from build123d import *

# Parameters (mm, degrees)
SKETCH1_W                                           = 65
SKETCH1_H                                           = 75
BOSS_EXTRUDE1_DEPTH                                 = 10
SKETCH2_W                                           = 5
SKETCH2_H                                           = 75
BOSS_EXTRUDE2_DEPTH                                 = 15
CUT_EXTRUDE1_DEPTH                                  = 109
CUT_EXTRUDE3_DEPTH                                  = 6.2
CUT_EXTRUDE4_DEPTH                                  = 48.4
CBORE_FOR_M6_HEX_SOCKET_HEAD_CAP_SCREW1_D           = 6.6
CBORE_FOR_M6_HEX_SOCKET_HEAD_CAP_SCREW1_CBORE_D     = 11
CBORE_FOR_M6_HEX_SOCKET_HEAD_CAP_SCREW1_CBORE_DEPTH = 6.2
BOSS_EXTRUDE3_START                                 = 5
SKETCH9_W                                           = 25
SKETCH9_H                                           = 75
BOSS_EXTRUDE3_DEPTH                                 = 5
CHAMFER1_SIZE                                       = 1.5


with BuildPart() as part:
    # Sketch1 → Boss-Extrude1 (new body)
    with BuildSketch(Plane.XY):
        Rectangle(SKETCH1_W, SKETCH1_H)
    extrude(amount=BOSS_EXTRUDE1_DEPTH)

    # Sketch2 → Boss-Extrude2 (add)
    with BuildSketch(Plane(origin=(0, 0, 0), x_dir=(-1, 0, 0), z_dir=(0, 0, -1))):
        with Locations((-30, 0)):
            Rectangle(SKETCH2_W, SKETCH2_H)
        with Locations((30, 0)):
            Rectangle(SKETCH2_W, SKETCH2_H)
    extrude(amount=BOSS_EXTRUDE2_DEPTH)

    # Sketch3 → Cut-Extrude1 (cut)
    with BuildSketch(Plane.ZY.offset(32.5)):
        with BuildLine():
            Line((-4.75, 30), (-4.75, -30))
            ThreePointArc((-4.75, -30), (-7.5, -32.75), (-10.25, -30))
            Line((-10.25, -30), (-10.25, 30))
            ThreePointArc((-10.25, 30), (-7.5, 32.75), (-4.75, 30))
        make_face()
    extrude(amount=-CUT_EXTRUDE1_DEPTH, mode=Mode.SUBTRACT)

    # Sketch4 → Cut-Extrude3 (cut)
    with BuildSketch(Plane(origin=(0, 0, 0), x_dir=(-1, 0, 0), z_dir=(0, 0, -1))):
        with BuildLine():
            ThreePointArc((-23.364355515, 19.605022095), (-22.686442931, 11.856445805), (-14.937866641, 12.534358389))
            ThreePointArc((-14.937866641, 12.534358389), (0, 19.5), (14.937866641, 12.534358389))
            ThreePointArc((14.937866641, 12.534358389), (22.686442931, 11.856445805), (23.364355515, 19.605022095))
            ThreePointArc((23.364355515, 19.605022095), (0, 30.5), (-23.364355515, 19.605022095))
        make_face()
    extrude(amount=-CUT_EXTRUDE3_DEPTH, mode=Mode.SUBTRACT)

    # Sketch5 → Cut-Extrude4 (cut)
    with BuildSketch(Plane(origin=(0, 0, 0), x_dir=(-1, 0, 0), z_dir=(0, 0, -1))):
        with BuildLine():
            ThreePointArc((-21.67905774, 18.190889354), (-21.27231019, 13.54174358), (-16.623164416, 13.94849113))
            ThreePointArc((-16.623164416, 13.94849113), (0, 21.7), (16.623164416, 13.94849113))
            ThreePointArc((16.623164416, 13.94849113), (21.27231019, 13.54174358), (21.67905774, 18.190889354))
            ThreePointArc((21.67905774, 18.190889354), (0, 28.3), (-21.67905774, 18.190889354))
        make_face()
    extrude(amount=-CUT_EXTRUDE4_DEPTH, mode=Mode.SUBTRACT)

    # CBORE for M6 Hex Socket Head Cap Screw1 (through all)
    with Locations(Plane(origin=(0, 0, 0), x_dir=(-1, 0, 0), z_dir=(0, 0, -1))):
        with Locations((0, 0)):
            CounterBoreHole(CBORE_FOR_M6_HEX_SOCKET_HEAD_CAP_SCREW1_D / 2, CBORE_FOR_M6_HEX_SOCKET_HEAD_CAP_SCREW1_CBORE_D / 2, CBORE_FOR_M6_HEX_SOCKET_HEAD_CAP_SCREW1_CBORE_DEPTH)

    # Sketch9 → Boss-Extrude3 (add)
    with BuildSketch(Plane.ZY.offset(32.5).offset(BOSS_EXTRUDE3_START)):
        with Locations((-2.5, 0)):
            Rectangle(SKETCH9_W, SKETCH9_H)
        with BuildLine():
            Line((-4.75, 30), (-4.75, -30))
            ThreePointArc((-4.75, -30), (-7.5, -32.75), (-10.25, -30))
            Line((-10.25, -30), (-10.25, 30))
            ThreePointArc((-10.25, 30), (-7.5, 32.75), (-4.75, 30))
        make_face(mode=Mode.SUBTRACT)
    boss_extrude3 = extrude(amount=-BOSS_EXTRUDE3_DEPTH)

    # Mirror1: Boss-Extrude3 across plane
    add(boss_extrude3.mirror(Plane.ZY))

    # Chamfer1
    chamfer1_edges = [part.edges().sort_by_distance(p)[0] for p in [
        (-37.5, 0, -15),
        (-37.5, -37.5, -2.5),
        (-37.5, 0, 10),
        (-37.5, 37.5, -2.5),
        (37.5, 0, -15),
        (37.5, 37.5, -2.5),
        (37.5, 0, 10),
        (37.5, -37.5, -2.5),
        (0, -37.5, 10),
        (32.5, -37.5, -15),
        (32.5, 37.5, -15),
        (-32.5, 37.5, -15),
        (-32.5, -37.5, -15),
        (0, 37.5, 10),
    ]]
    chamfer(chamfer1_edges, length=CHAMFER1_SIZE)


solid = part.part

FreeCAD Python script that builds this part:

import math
import FreeCAD as App
import Part
import Sketcher


def edges_at(feature, points):
    """Names of the edges that pass closest to the given points."""
    edges = feature.Shape.Edges
    near = lambda p: min(range(len(edges)), key=lambda i: edges[i].distToShape(Part.Vertex(*p))[0])
    return sorted({f"Edge{near(p) + 1}" for p in points})


def add_polygon(sketch, points):
    """Adds a closed chain of lines whose ends are joined by coincident constraints."""
    first, n = sketch.GeometryCount, len(points)
    for a, b in zip(points, points[1:] + points[:1]):
        sketch.addGeometry(Part.LineSegment(App.Vector(*a, 0), App.Vector(*b, 0)), False)
    for i in range(n):
        sketch.addConstraint(Sketcher.Constraint("Coincident", first + i, 2, first + (i + 1) % n, 1))

doc = App.newDocument("Part")
body = doc.addObject("PartDesign::Body", "Body")

sketch1 = body.newObject("Sketcher::SketchObject", "Sketch")
sketch1.AttachmentSupport = (doc.getObject("XY_Plane"), [""])
sketch1.MapMode = "FlatFace"
add_polygon(sketch1, [(-32.5, 37.5), (-32.5, -37.5), (32.5, -37.5), (32.5, 37.5)])
sketch1.addConstraint(Sketcher.Constraint("Vertical", 0))
sketch1.addConstraint(Sketcher.Constraint("Horizontal", 1))
sketch1.addConstraint(Sketcher.Constraint("Vertical", 2))
sketch1.addConstraint(Sketcher.Constraint("Horizontal", 3))
sketch1.addConstraint(Sketcher.Constraint("Symmetric", 0, 2, 2, 2, -1, 1))
sketch1.addConstraint(Sketcher.Constraint("DistanceX", 1, 1, 1, 2, 65.0))
sketch1.addConstraint(Sketcher.Constraint("DistanceY", 0, 2, 0, 1, 75.0))
pad1 = body.newObject("PartDesign::Pad", "Pad")
pad1.Profile = sketch1
pad1.Length = 10

sketch2 = body.newObject("Sketcher::SketchObject", "Sketch001")
sketch2.AttachmentSupport = (doc.getObject("XY_Plane"), [""])
sketch2.MapMode = "FlatFace"
add_polygon(sketch2, [(32.5, 37.5), (32.5, -37.5), (27.5, -37.5), (27.5, 37.5)])
add_polygon(sketch2, [(-27.5, 37.5), (-27.5, -37.5), (-32.5, -37.5), (-32.5, 37.5)])
sketch2.addConstraint(Sketcher.Constraint("Vertical", 0))
sketch2.addConstraint(Sketcher.Constraint("Horizontal", 1))
sketch2.addConstraint(Sketcher.Constraint("Vertical", 2))
sketch2.addConstraint(Sketcher.Constraint("Horizontal", 3))
sketch2.addConstraint(Sketcher.Constraint("Vertical", 4))
sketch2.addConstraint(Sketcher.Constraint("Horizontal", 5))
sketch2.addConstraint(Sketcher.Constraint("Vertical", 6))
sketch2.addConstraint(Sketcher.Constraint("Horizontal", 7))
sketch2.addConstraint(Sketcher.Constraint("Symmetric", 2, 2, 4, 2, -1, 1))
sketch2.addConstraint(Sketcher.Constraint("Symmetric", 0, 2, 6, 2, -1, 1))
sketch2.addConstraint(Sketcher.Constraint("Horizontal", 1, 2, 4, 2))
sketch2.addConstraint(Sketcher.Constraint("DistanceX", 1, 2, 1, 1, 5.0))
sketch2.addConstraint(Sketcher.Constraint("DistanceY", 0, 2, 0, 1, 75.0))
sketch2.addConstraint(Sketcher.Constraint("DistanceX", 4, 2, 1, 2, 55.0))
pad2 = body.newObject("PartDesign::Pad", "Pad001")
pad2.Profile = sketch2
pad2.Length = 15
pad2.Reversed = True

sketch3 = body.newObject("Sketcher::SketchObject", "Sketch002")
sketch3.AttachmentSupport = (doc.getObject("YZ_Plane"), [""])
sketch3.MapMode = "FlatFace"
sketch3.AttachmentOffset = App.Placement(App.Vector(0, 0, -32.5), App.Rotation())
sketch3.addGeometry(Part.LineSegment(App.Vector(-30, -4.75, 0), App.Vector(30, -4.75, 0)), False)
sketch3.addGeometry(Part.ArcOfCircle(Part.Circle(App.Vector(30, -7.5, 0), App.Vector(0, 0, 1), 2.75), math.radians(-90), math.radians(90)), False)
sketch3.addGeometry(Part.LineSegment(App.Vector(30, -10.25, 0), App.Vector(-30, -10.25, 0)), False)
sketch3.addGeometry(Part.ArcOfCircle(Part.Circle(App.Vector(-30, -7.5, 0), App.Vector(0, 0, 1), 2.75), math.radians(90), math.radians(270)), False)
sketch3.addConstraint(Sketcher.Constraint("Tangent", 0, 2, 1, 2))
sketch3.addConstraint(Sketcher.Constraint("Tangent", 1, 1, 2, 1))
sketch3.addConstraint(Sketcher.Constraint("Tangent", 2, 2, 3, 2))
sketch3.addConstraint(Sketcher.Constraint("Tangent", 3, 1, 0, 1))
sketch3.addConstraint(Sketcher.Constraint("Horizontal", 0))
sketch3.addConstraint(Sketcher.Constraint("Horizontal", 2))
sketch3.addConstraint(Sketcher.Constraint("DistanceX", 0, 1, 0, 2, 60.0))
sketch3.addConstraint(Sketcher.Constraint("Radius", 1, 2.75))
sketch3.addConstraint(Sketcher.Constraint("DistanceX", -1, 1, 1, 3, 30.0))
sketch3.addConstraint(Sketcher.Constraint("DistanceY", 1, 3, -1, 1, 7.5))
pocket1 = body.newObject("PartDesign::Pocket", "Pocket")
pocket1.Profile = sketch3
pocket1.Length = 109
pocket1.Reversed = True

sketch4 = body.newObject("Sketcher::SketchObject", "Sketch003")
sketch4.AttachmentSupport = (doc.getObject("XY_Plane"), [""])
sketch4.MapMode = "FlatFace"
sketch4.addGeometry(Part.ArcOfCircle(Part.Circle(App.Vector(19.151111, 16.06969, 0), App.Vector(0, 0, 1), 5.5), math.radians(-140), math.radians(40)), False)
sketch4.addGeometry(Part.ArcOfCircle(Part.Circle(App.Vector(0, 0, 0), App.Vector(0, 0, 1), 19.5), math.radians(40), math.radians(140)), False)
sketch4.addGeometry(Part.ArcOfCircle(Part.Circle(App.Vector(-19.151111, 16.06969, 0), App.Vector(0, 0, 1), 5.5), math.radians(140), math.radians(320)), False)
sketch4.addGeometry(Part.ArcOfCircle(Part.Circle(App.Vector(0, 0, 0), App.Vector(0, 0, 1), 30.5), math.radians(40), math.radians(140)), False)
sketch4.addConstraint(Sketcher.Constraint("Tangent", 0, 1, 1, 1))
sketch4.addConstraint(Sketcher.Constraint("Tangent", 1, 2, 2, 2))
sketch4.addConstraint(Sketcher.Constraint("Tangent", 2, 1, 3, 2))
sketch4.addConstraint(Sketcher.Constraint("Tangent", 3, 1, 0, 2))
sketch4.addConstraint(Sketcher.Constraint("Coincident", 1, 3, -1, 1))
sketch4.addConstraint(Sketcher.Constraint("Coincident", 3, 3, -1, 1))
sketch4.addConstraint(Sketcher.Constraint("Horizontal", 0, 3, 2, 3))
sketch4.addConstraint(Sketcher.Constraint("Radius", 0, 5.5))
sketch4.addConstraint(Sketcher.Constraint("Radius", 1, 19.5))
sketch4.addConstraint(Sketcher.Constraint("DistanceX", -1, 1, 0, 3, 19.151111))
pocket2 = body.newObject("PartDesign::Pocket", "Pocket001")
pocket2.Profile = sketch4
pocket2.Length = 6.2
pocket2.Reversed = True

sketch5 = body.newObject("Sketcher::SketchObject", "Sketch004")
sketch5.AttachmentSupport = (doc.getObject("XY_Plane"), [""])
sketch5.MapMode = "FlatFace"
sketch5.addGeometry(Part.ArcOfCircle(Part.Circle(App.Vector(19.151111, 16.06969, 0), App.Vector(0, 0, 1), 3.3), math.radians(-140), math.radians(40)), False)
sketch5.addGeometry(Part.ArcOfCircle(Part.Circle(App.Vector(0, 0, 0), App.Vector(0, 0, 1), 21.7), math.radians(40), math.radians(140)), False)
sketch5.addGeometry(Part.ArcOfCircle(Part.Circle(App.Vector(-19.151111, 16.06969, 0), App.Vector(0, 0, 1), 3.3), math.radians(140), math.radians(320)), False)
sketch5.addGeometry(Part.ArcOfCircle(Part.Circle(App.Vector(0, 0, 0), App.Vector(0, 0, 1), 28.3), math.radians(40), math.radians(140)), False)
sketch5.addConstraint(Sketcher.Constraint("Tangent", 0, 1, 1, 1))
sketch5.addConstraint(Sketcher.Constraint("Tangent", 1, 2, 2, 2))
sketch5.addConstraint(Sketcher.Constraint("Tangent", 2, 1, 3, 2))
sketch5.addConstraint(Sketcher.Constraint("Tangent", 3, 1, 0, 2))
sketch5.addConstraint(Sketcher.Constraint("Coincident", 1, 3, -1, 1))
sketch5.addConstraint(Sketcher.Constraint("Coincident", 3, 3, -1, 1))
sketch5.addConstraint(Sketcher.Constraint("Horizontal", 0, 3, 2, 3))
sketch5.addConstraint(Sketcher.Constraint("Radius", 0, 3.3))
sketch5.addConstraint(Sketcher.Constraint("Radius", 1, 21.7))
sketch5.addConstraint(Sketcher.Constraint("DistanceY", 0, 1, 0, 3, 2.121199))
pocket3 = body.newObject("PartDesign::Pocket", "Pocket002")
pocket3.Profile = sketch5
pocket3.Length = 48.4
pocket3.Reversed = True

sketch6 = body.newObject("Sketcher::SketchObject", "Sketch005")
sketch6.AttachmentSupport = (doc.getObject("XY_Plane"), [""])
sketch6.MapMode = "FlatFace"
sketch6.addGeometry(Part.Circle(App.Vector(0, 0, 0), App.Vector(0, 0, 1), 3.3), False)
sketch6.addConstraint(Sketcher.Constraint("Coincident", 0, 3, -1, 1))
sketch6.addConstraint(Sketcher.Constraint("Diameter", 0, 6.6))
doc.recompute()
hole = body.newObject("PartDesign::Hole", "Hole")
hole.Profile = sketch6
hole.ThreadType = "None"
hole.Diameter = 6.6
hole.DepthType = "ThroughAll"
hole.HoleCutType = "Counterbore"
hole.HoleCutDiameter = 11
hole.HoleCutDepth = 6.2
hole.Reversed = True

sketch7 = body.newObject("Sketcher::SketchObject", "Sketch006")
sketch7.AttachmentSupport = (doc.getObject("YZ_Plane"), [""])
sketch7.MapMode = "FlatFace"
sketch7.AttachmentOffset = App.Placement(App.Vector(0, 0, -37.5), App.Rotation())
add_polygon(sketch7, [(37.5, -15), (-37.5, -15), (-37.5, 10), (37.5, 10)])
sketch7.addGeometry(Part.ArcOfCircle(Part.Circle(App.Vector(30, -7.5, 0), App.Vector(0, 0, 1), 2.75), math.radians(-90), math.radians(90)), False)
sketch7.addGeometry(Part.LineSegment(App.Vector(30, -4.75, 0), App.Vector(-30, -4.75, 0)), False)
sketch7.addGeometry(Part.ArcOfCircle(Part.Circle(App.Vector(-30, -7.5, 0), App.Vector(0, 0, 1), 2.75), math.radians(90), math.radians(270)), False)
sketch7.addGeometry(Part.LineSegment(App.Vector(-30, -10.25, 0), App.Vector(30, -10.25, 0)), False)
sketch7.addConstraint(Sketcher.Constraint("Tangent", 4, 2, 5, 1))
sketch7.addConstraint(Sketcher.Constraint("Tangent", 5, 2, 6, 1))
sketch7.addConstraint(Sketcher.Constraint("Tangent", 6, 2, 7, 1))
sketch7.addConstraint(Sketcher.Constraint("Tangent", 7, 2, 4, 1))
sketch7.addConstraint(Sketcher.Constraint("Horizontal", 0))
sketch7.addConstraint(Sketcher.Constraint("Vertical", 1))
sketch7.addConstraint(Sketcher.Constraint("Horizontal", 2))
sketch7.addConstraint(Sketcher.Constraint("Vertical", 3))
sketch7.addConstraint(Sketcher.Constraint("Horizontal", 5))
sketch7.addConstraint(Sketcher.Constraint("Horizontal", 7))
sketch7.addConstraint(Sketcher.Constraint("DistanceX", 0, 2, 0, 1, 75.0))
sketch7.addConstraint(Sketcher.Constraint("DistanceX", 5, 2, 5, 1, 60.0))
sketch7.addConstraint(Sketcher.Constraint("DistanceY", 1, 1, 1, 2, 25.0))
sketch7.addConstraint(Sketcher.Constraint("Radius", 4, 2.75))
sketch7.addConstraint(Sketcher.Constraint("DistanceX", -1, 1, 4, 3, 30.0))
sketch7.addConstraint(Sketcher.Constraint("DistanceY", 0, 2, -1, 1, 15.0))
sketch7.addConstraint(Sketcher.Constraint("DistanceY", 4, 3, -1, 1, 7.5))
sketch7.addConstraint(Sketcher.Constraint("DistanceX", 0, 2, -1, 1, 37.5))
pad3 = body.newObject("PartDesign::Pad", "Pad002")
pad3.Profile = sketch7
pad3.Length = 5
doc.recompute()

mirrored = body.newObject("PartDesign::Mirrored", "Mirrored")
mirrored.Originals = [pad3]
mirrored.MirrorPlane = (doc.getObject("YZ_Plane"), [""])
body.Tip = mirrored
doc.recompute()

chamfer = body.newObject("PartDesign::Chamfer", "Chamfer")
chamfer.Base = (mirrored, edges_at(mirrored, [
    (-37.5, 0, -15),
    (-37.5, -37.5, -2.5),
    (-37.5, 0, 10),
    (-37.5, 37.5, -2.5),
    (37.5, 0, -15),
    (37.5, 37.5, -2.5),
    (37.5, 0, 10),
    (37.5, -37.5, -2.5),
    (0, -37.5, 10),
    (32.5, -37.5, -15),
    (32.5, 37.5, -15),
    (-32.5, 37.5, -15),
    (-32.5, -37.5, -15),
    (0, 37.5, 10),
]))
chamfer.Size = 1.5

doc.recompute()
